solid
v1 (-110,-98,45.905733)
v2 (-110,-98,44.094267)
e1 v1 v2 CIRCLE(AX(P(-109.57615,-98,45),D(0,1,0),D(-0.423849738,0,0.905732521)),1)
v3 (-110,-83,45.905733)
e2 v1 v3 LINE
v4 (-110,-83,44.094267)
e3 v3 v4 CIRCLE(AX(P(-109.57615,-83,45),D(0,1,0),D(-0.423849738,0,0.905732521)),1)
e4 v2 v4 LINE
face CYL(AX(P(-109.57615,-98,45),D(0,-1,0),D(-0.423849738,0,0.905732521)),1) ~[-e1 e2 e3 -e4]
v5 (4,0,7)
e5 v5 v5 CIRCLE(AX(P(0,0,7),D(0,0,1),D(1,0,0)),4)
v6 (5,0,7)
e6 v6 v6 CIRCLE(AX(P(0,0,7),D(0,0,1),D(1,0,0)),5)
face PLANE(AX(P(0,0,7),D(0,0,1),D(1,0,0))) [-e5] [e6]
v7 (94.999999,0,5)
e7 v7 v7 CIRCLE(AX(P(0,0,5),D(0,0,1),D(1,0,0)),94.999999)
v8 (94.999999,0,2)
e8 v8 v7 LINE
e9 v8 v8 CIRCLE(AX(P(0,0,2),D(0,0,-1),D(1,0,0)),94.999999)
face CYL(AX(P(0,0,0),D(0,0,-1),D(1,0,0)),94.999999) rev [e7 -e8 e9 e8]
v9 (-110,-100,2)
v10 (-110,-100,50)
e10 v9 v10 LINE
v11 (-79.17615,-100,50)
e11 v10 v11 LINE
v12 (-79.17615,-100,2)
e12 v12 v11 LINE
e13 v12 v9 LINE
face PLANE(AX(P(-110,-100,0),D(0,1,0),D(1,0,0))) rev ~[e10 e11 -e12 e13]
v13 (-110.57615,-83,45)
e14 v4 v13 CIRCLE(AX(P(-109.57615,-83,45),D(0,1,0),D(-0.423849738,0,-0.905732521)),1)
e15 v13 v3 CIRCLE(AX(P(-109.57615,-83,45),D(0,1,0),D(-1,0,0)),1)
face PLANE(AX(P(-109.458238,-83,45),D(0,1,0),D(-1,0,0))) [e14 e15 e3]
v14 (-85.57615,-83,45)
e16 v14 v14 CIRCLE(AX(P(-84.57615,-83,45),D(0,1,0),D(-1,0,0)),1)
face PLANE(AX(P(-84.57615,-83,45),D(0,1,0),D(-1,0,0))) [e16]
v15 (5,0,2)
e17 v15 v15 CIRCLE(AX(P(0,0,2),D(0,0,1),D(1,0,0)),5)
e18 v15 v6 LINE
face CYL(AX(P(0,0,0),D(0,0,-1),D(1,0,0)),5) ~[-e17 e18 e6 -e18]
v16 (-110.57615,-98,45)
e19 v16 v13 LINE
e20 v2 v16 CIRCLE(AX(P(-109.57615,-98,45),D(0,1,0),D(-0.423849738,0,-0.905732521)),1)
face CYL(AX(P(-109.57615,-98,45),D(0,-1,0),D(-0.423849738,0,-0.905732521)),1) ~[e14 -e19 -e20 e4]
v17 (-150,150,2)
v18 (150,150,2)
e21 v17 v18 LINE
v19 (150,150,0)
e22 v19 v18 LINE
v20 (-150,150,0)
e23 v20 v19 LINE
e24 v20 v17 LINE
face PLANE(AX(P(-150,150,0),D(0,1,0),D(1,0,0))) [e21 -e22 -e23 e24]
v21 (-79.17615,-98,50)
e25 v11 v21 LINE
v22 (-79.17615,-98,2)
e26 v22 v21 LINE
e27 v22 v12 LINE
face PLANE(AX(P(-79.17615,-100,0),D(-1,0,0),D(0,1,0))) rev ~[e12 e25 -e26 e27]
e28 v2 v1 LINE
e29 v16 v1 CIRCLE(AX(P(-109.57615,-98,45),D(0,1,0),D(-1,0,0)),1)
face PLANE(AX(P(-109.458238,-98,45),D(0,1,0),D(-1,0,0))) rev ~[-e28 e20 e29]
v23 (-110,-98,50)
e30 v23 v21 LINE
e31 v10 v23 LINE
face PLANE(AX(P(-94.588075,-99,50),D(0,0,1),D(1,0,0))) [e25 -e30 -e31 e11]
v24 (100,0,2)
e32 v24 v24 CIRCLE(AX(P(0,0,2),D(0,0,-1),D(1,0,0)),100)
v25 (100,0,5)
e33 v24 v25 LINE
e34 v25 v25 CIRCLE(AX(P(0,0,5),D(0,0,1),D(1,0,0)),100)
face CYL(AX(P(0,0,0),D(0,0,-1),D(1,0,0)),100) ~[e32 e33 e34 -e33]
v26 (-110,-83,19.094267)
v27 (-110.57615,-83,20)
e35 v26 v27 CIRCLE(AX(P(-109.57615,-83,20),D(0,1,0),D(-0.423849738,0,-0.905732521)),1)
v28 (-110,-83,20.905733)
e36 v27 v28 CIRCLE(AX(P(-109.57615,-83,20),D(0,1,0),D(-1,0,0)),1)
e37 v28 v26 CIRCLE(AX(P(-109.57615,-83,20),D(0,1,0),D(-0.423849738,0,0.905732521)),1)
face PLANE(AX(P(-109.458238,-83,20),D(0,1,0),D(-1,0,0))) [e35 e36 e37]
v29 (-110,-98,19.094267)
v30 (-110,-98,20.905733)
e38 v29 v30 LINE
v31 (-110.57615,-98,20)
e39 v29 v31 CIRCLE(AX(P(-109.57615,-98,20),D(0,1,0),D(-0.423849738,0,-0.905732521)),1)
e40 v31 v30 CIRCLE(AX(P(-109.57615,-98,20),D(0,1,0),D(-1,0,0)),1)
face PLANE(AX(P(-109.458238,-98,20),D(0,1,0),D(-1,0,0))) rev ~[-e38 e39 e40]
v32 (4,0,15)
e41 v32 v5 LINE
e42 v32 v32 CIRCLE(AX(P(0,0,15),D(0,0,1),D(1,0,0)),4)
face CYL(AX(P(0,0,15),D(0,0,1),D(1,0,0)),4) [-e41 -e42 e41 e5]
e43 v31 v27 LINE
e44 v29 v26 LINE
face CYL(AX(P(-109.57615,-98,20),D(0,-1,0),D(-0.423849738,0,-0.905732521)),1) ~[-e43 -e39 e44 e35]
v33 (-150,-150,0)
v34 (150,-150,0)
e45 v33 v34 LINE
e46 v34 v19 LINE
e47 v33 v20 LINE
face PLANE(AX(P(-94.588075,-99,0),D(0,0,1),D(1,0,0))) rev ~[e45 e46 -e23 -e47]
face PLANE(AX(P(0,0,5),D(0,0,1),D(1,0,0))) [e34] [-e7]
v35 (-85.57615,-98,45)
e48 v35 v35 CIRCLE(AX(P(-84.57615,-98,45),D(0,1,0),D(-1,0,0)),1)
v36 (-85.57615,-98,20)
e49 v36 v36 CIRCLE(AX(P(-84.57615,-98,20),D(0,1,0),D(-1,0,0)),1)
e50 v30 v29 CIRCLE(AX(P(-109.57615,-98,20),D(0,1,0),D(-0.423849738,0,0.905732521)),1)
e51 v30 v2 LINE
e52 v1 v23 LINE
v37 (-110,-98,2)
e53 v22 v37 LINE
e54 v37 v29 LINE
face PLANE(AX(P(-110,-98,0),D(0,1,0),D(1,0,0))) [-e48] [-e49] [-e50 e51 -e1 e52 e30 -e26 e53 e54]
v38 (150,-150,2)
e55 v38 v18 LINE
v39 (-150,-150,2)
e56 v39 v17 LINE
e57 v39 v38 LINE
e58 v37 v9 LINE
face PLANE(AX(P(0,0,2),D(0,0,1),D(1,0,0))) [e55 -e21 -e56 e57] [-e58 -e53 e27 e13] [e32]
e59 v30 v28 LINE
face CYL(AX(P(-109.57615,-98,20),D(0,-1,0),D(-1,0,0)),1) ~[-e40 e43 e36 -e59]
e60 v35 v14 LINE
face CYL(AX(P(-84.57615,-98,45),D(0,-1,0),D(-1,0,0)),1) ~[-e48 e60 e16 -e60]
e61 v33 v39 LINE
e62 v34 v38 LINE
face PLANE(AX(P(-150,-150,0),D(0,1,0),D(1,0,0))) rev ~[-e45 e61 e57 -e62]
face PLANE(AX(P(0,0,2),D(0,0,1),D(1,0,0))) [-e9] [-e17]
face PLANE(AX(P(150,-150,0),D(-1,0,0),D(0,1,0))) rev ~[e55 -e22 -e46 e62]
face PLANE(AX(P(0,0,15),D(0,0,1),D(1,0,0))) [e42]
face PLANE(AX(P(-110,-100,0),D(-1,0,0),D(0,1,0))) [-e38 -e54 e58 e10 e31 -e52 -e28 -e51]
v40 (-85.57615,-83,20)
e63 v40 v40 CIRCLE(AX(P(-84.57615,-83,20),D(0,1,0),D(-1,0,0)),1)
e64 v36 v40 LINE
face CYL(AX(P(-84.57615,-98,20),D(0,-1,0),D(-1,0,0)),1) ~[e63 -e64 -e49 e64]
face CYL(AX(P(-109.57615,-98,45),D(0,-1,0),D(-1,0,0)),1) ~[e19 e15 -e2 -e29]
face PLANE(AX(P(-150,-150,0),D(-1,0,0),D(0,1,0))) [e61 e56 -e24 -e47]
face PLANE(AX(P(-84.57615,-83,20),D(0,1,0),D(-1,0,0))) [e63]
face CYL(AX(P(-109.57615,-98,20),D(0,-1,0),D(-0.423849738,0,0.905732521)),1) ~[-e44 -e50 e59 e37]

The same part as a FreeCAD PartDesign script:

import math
import FreeCAD as App
import Part
import Sketcher


def add_polygon(sketch, points):
    """Adds a closed chain of lines whose ends are joined by coincident constraints."""
    first, n = sketch.GeometryCount, len(points)
    for a, b in zip(points, points[1:] + points[:1]):
        sketch.addGeometry(Part.LineSegment(App.Vector(*a, 0), App.Vector(*b, 0)), False)
    for i in range(n):
        sketch.addConstraint(Sketcher.Constraint("Coincident", first + i, 2, first + (i + 1) % n, 1))

doc = App.newDocument("Part")
body = doc.addObject("PartDesign::Body", "Body")

# Sketch on XY plane
sketch1 = body.newObject("Sketcher::SketchObject", "Sketch")
sketch1.AttachmentSupport = (doc.getObject("XY_Plane"), [""])
sketch1.MapMode = "FlatFace"
add_polygon(sketch1, [(-150, 150), (-150, -150), (150, -150), (150, 150)])  # lines 0-3
sketch1.addGeometry(Part.Circle(App.Vector(0, 0, 0), App.Vector(0, 0, 1), 5), False)  # 4
sketch1.addConstraint(Sketcher.Constraint("Vertical", 0))
sketch1.addConstraint(Sketcher.Constraint("Horizontal", 1))
sketch1.addConstraint(Sketcher.Constraint("Vertical", 2))
sketch1.addConstraint(Sketcher.Constraint("Horizontal", 3))
sketch1.addConstraint(Sketcher.Constraint("Coincident", 4, 3, -1, 1))
sketch1.addConstraint(Sketcher.Constraint("Symmetric", 0, 2, 2, 2, -1, 1))
sketch1.addConstraint(Sketcher.Constraint("Equal", 3, 0))
sketch1.addConstraint(Sketcher.Constraint("Diameter", 4, 10.0))
sketch1.addConstraint(Sketcher.Constraint("DistanceX", 1, 1, 1, 2, 300.0))
pad1 = body.newObject("PartDesign::Pad", "Pad")
pad1.Profile = sketch1
pad1.Length = 2

# Sketch on XY plane
sketch2 = body.newObject("Sketcher::SketchObject", "Sketch001")
sketch2.AttachmentSupport = (doc.getObject("XY_Plane"), [""])
sketch2.MapMode = "FlatFace"
sketch2.addGeometry(Part.Circle(App.Vector(0, 0, 0), App.Vector(0, 0, 1), 5), False)
sketch2.addConstraint(Sketcher.Constraint("Coincident", 0, 3, -1, 1))
sketch2.addConstraint(Sketcher.Constraint("Diameter", 0, 10.0))
pad2 = body.newObject("PartDesign::Pad", "Pad001")
pad2.Profile = sketch2
pad2.Length = 15

# Sketch on XY plane
sketch3 = body.newObject("Sketcher::SketchObject", "Sketch002")
sketch3.AttachmentSupport = (doc.getObject("XY_Plane"), [""])
sketch3.MapMode = "FlatFace"
sketch3.addGeometry(Part.Circle(App.Vector(0, 0, 0), App.Vector(0, 0, 1), 100), False)
sketch3.addGeometry(Part.Circle(App.Vector(0, 0, 0), App.Vector(0, 0, 1), 95), False)
sketch3.addConstraint(Sketcher.Constraint("Coincident", 0, 3, -1, 1))
sketch3.addConstraint(Sketcher.Constraint("Coincident", 1, 3, -1, 1))
sketch3.addConstraint(Sketcher.Constraint("Diameter", 0, 200.0))
sketch3.addConstraint(Sketcher.Constraint("Diameter", 1, 189.999998))
pad3 = body.newObject("PartDesign::Pad", "Pad002")
pad3.Profile = sketch3
pad3.Length = 5

# Sketch on XY plane
sketch4 = body.newObject("Sketcher::SketchObject", "Sketch003")
sketch4.AttachmentSupport = (doc.getObject("XY_Plane"), [""])
sketch4.MapMode = "FlatFace"
add_polygon(sketch4, [(-110, -98), (-110, -100), (-79.2, -100), (-79.2, -98)])  # lines 0-3
sketch4.addConstraint(Sketcher.Constraint("Vertical", 0))
sketch4.addConstraint(Sketcher.Constraint("Horizontal", 1))
sketch4.addConstraint(Sketcher.Constraint("Vertical", 2))
sketch4.addConstraint(Sketcher.Constraint("Horizontal", 3))
sketch4.addConstraint(Sketcher.Constraint("DistanceY", 0, 2, 0, 1, 2.0))
sketch4.addConstraint(Sketcher.Constraint("DistanceX", 0, 2, -1, 1, 110.0))
sketch4.addConstraint(Sketcher.Constraint("DistanceY", 0, 2, -1, 1, 100.0))
sketch4.addConstraint(Sketcher.Constraint("DistanceX", 1, 1, 1, 2, 30.82385))
pad4 = body.newObject("PartDesign::Pad", "Pad003")
pad4.Profile = sketch4
pad4.Length = 50

# Sketch on XZ plane
sketch5 = body.newObject("Sketcher::SketchObject", "Sketch004")
sketch5.AttachmentSupport = (doc.getObject("XZ_Plane"), [""])
sketch5.MapMode = "FlatFace"
sketch5.AttachmentOffset = App.Placement(App.Vector(0, 0, 98), App.Rotation())
sketch5.addGeometry(Part.Circle(App.Vector(-84.6, 45, 0), App.Vector(0, 0, 1), 1), False)
sketch5.addGeometry(Part.ArcOfCircle(Part.Circle(App.Vector(-109.6, 45, 0), App.Vector(0, 0, 1), 1), math.radians(-115), math.radians(115)), False)
sketch5.addGeometry(Part.ArcOfCircle(Part.Circle(App.Vector(-109.6, 45, 0), App.Vector(0, 0, 1), 1), math.radians(180), math.radians(245)), False)
sketch5.addGeometry(Part.ArcOfCircle(Part.Circle(App.Vector(-109.6, 45, 0), App.Vector(0, 0, 1), 1), math.radians(115), math.radians(180)), False)
sketch5.addGeometry(Part.ArcOfCircle(Part.Circle(App.Vector(-109.6, 20, 0), App.Vector(0, 0, 1), 1), math.radians(-115), math.radians(115)), False)
sketch5.addGeometry(Part.ArcOfCircle(Part.Circle(App.Vector(-109.6, 20, 0), App.Vector(0, 0, 1), 1), math.radians(180), math.radians(245)), False)
sketch5.addGeometry(Part.ArcOfCircle(Part.Circle(App.Vector(-109.6, 20, 0), App.Vector(0, 0, 1), 1), math.radians(115), math.radians(180)), False)
sketch5.addGeometry(Part.Circle(App.Vector(-84.6, 20, 0), App.Vector(0, 0, 1), 1), False)
sketch5.addConstraint(Sketcher.Constraint("Tangent", 1, 1, 2, 2))
sketch5.addConstraint(Sketcher.Constraint("Tangent", 2, 1, 3, 2))
sketch5.addConstraint(Sketcher.Constraint("Tangent", 3, 1, 1, 2))
sketch5.addConstraint(Sketcher.Constraint("Tangent", 4, 1, 5, 2))
sketch5.addConstraint(Sketcher.Constraint("Tangent", 5, 1, 6, 2))
sketch5.addConstraint(Sketcher.Constraint("Tangent", 6, 1, 4, 2))
sketch5.addConstraint(Sketcher.Constraint("Equal", 0, 1))
sketch5.addConstraint(Sketcher.Constraint("Equal", 3, 4))
sketch5.addConstraint(Sketcher.Constraint("Equal", 6, 7))
sketch5.addConstraint(Sketcher.Constraint("Horizontal", 0, 3, 1, 3))
sketch5.addConstraint(Sketcher.Constraint("Horizontal", 6, 3, 7, 3))
sketch5.addConstraint(Sketcher.Constraint("Horizontal", 3, 3, 2, 1))
sketch5.addConstraint(Sketcher.Constraint("Horizontal", 7, 3, 5, 1))
sketch5.addConstraint(Sketcher.Constraint("Vertical", 3, 3, 4, 3))
sketch5.addConstraint(Sketcher.Constraint("Vertical", 0, 3, 7, 3))
sketch5.addConstraint(Sketcher.Constraint("Vertical", 1, 1, 3, 1))
sketch5.addConstraint(Sketcher.Constraint("Vertical", 3, 1, 4, 1))
sketch5.addConstraint(Sketcher.Constraint("Vertical", 4, 1, 6, 1))
sketch5.addConstraint(Sketcher.Constraint("Diameter", 0, 2.0))
sketch5.addConstraint(Sketcher.Constraint("DistanceY", -1, 1, 0, 3, 45.0))
sketch5.addConstraint(Sketcher.Constraint("DistanceY", -1, 1, 4, 3, 20.0))
sketch5.addConstraint(Sketcher.Constraint("DistanceX", 1, 1, -1, 1, 110.0))
sketch5.addConstraint(Sketcher.Constraint("DistanceX", 1, 3, 0, 3, 25.0))
sketch5.addConstraint(Sketcher.Constraint("DistanceX", 0, 3, -1, 1, 84.57615))
pad5 = body.newObject("PartDesign::Pad", "Pad004")
pad5.Profile = sketch5
pad5.Length = 15
pad5.Reversed = True

# Sketch on XY plane
sketch6 = body.newObject("Sketcher::SketchObject", "Sketch005")
sketch6.AttachmentSupport = (doc.getObject("XY_Plane"), [""])
sketch6.MapMode = "FlatFace"
sketch6.AttachmentOffset = App.Placement(App.Vector(0, 0, 15), App.Rotation())
sketch6.addGeometry(Part.Circle(App.Vector(0, 0, 0), App.Vector(0, 0, 1), 5), False)
sketch6.addGeometry(Part.Circle(App.Vector(0, 0, 0), App.Vector(0, 0, 1), 4), False)
sketch6.addConstraint(Sketcher.Constraint("Coincident", 0, 3, -1, 1))
sketch6.addConstraint(Sketcher.Constraint("Coincident", 1, 3, -1, 1))
sketch6.addConstraint(Sketcher.Constraint("Diameter", 0, 10.0))
sketch6.addConstraint(Sketcher.Constraint("Diameter", 1, 8.0))
pocket1 = body.newObject("PartDesign::Pocket", "Pocket")
pocket1.Profile = sketch6
pocket1.Length = 8

doc.recompute()
